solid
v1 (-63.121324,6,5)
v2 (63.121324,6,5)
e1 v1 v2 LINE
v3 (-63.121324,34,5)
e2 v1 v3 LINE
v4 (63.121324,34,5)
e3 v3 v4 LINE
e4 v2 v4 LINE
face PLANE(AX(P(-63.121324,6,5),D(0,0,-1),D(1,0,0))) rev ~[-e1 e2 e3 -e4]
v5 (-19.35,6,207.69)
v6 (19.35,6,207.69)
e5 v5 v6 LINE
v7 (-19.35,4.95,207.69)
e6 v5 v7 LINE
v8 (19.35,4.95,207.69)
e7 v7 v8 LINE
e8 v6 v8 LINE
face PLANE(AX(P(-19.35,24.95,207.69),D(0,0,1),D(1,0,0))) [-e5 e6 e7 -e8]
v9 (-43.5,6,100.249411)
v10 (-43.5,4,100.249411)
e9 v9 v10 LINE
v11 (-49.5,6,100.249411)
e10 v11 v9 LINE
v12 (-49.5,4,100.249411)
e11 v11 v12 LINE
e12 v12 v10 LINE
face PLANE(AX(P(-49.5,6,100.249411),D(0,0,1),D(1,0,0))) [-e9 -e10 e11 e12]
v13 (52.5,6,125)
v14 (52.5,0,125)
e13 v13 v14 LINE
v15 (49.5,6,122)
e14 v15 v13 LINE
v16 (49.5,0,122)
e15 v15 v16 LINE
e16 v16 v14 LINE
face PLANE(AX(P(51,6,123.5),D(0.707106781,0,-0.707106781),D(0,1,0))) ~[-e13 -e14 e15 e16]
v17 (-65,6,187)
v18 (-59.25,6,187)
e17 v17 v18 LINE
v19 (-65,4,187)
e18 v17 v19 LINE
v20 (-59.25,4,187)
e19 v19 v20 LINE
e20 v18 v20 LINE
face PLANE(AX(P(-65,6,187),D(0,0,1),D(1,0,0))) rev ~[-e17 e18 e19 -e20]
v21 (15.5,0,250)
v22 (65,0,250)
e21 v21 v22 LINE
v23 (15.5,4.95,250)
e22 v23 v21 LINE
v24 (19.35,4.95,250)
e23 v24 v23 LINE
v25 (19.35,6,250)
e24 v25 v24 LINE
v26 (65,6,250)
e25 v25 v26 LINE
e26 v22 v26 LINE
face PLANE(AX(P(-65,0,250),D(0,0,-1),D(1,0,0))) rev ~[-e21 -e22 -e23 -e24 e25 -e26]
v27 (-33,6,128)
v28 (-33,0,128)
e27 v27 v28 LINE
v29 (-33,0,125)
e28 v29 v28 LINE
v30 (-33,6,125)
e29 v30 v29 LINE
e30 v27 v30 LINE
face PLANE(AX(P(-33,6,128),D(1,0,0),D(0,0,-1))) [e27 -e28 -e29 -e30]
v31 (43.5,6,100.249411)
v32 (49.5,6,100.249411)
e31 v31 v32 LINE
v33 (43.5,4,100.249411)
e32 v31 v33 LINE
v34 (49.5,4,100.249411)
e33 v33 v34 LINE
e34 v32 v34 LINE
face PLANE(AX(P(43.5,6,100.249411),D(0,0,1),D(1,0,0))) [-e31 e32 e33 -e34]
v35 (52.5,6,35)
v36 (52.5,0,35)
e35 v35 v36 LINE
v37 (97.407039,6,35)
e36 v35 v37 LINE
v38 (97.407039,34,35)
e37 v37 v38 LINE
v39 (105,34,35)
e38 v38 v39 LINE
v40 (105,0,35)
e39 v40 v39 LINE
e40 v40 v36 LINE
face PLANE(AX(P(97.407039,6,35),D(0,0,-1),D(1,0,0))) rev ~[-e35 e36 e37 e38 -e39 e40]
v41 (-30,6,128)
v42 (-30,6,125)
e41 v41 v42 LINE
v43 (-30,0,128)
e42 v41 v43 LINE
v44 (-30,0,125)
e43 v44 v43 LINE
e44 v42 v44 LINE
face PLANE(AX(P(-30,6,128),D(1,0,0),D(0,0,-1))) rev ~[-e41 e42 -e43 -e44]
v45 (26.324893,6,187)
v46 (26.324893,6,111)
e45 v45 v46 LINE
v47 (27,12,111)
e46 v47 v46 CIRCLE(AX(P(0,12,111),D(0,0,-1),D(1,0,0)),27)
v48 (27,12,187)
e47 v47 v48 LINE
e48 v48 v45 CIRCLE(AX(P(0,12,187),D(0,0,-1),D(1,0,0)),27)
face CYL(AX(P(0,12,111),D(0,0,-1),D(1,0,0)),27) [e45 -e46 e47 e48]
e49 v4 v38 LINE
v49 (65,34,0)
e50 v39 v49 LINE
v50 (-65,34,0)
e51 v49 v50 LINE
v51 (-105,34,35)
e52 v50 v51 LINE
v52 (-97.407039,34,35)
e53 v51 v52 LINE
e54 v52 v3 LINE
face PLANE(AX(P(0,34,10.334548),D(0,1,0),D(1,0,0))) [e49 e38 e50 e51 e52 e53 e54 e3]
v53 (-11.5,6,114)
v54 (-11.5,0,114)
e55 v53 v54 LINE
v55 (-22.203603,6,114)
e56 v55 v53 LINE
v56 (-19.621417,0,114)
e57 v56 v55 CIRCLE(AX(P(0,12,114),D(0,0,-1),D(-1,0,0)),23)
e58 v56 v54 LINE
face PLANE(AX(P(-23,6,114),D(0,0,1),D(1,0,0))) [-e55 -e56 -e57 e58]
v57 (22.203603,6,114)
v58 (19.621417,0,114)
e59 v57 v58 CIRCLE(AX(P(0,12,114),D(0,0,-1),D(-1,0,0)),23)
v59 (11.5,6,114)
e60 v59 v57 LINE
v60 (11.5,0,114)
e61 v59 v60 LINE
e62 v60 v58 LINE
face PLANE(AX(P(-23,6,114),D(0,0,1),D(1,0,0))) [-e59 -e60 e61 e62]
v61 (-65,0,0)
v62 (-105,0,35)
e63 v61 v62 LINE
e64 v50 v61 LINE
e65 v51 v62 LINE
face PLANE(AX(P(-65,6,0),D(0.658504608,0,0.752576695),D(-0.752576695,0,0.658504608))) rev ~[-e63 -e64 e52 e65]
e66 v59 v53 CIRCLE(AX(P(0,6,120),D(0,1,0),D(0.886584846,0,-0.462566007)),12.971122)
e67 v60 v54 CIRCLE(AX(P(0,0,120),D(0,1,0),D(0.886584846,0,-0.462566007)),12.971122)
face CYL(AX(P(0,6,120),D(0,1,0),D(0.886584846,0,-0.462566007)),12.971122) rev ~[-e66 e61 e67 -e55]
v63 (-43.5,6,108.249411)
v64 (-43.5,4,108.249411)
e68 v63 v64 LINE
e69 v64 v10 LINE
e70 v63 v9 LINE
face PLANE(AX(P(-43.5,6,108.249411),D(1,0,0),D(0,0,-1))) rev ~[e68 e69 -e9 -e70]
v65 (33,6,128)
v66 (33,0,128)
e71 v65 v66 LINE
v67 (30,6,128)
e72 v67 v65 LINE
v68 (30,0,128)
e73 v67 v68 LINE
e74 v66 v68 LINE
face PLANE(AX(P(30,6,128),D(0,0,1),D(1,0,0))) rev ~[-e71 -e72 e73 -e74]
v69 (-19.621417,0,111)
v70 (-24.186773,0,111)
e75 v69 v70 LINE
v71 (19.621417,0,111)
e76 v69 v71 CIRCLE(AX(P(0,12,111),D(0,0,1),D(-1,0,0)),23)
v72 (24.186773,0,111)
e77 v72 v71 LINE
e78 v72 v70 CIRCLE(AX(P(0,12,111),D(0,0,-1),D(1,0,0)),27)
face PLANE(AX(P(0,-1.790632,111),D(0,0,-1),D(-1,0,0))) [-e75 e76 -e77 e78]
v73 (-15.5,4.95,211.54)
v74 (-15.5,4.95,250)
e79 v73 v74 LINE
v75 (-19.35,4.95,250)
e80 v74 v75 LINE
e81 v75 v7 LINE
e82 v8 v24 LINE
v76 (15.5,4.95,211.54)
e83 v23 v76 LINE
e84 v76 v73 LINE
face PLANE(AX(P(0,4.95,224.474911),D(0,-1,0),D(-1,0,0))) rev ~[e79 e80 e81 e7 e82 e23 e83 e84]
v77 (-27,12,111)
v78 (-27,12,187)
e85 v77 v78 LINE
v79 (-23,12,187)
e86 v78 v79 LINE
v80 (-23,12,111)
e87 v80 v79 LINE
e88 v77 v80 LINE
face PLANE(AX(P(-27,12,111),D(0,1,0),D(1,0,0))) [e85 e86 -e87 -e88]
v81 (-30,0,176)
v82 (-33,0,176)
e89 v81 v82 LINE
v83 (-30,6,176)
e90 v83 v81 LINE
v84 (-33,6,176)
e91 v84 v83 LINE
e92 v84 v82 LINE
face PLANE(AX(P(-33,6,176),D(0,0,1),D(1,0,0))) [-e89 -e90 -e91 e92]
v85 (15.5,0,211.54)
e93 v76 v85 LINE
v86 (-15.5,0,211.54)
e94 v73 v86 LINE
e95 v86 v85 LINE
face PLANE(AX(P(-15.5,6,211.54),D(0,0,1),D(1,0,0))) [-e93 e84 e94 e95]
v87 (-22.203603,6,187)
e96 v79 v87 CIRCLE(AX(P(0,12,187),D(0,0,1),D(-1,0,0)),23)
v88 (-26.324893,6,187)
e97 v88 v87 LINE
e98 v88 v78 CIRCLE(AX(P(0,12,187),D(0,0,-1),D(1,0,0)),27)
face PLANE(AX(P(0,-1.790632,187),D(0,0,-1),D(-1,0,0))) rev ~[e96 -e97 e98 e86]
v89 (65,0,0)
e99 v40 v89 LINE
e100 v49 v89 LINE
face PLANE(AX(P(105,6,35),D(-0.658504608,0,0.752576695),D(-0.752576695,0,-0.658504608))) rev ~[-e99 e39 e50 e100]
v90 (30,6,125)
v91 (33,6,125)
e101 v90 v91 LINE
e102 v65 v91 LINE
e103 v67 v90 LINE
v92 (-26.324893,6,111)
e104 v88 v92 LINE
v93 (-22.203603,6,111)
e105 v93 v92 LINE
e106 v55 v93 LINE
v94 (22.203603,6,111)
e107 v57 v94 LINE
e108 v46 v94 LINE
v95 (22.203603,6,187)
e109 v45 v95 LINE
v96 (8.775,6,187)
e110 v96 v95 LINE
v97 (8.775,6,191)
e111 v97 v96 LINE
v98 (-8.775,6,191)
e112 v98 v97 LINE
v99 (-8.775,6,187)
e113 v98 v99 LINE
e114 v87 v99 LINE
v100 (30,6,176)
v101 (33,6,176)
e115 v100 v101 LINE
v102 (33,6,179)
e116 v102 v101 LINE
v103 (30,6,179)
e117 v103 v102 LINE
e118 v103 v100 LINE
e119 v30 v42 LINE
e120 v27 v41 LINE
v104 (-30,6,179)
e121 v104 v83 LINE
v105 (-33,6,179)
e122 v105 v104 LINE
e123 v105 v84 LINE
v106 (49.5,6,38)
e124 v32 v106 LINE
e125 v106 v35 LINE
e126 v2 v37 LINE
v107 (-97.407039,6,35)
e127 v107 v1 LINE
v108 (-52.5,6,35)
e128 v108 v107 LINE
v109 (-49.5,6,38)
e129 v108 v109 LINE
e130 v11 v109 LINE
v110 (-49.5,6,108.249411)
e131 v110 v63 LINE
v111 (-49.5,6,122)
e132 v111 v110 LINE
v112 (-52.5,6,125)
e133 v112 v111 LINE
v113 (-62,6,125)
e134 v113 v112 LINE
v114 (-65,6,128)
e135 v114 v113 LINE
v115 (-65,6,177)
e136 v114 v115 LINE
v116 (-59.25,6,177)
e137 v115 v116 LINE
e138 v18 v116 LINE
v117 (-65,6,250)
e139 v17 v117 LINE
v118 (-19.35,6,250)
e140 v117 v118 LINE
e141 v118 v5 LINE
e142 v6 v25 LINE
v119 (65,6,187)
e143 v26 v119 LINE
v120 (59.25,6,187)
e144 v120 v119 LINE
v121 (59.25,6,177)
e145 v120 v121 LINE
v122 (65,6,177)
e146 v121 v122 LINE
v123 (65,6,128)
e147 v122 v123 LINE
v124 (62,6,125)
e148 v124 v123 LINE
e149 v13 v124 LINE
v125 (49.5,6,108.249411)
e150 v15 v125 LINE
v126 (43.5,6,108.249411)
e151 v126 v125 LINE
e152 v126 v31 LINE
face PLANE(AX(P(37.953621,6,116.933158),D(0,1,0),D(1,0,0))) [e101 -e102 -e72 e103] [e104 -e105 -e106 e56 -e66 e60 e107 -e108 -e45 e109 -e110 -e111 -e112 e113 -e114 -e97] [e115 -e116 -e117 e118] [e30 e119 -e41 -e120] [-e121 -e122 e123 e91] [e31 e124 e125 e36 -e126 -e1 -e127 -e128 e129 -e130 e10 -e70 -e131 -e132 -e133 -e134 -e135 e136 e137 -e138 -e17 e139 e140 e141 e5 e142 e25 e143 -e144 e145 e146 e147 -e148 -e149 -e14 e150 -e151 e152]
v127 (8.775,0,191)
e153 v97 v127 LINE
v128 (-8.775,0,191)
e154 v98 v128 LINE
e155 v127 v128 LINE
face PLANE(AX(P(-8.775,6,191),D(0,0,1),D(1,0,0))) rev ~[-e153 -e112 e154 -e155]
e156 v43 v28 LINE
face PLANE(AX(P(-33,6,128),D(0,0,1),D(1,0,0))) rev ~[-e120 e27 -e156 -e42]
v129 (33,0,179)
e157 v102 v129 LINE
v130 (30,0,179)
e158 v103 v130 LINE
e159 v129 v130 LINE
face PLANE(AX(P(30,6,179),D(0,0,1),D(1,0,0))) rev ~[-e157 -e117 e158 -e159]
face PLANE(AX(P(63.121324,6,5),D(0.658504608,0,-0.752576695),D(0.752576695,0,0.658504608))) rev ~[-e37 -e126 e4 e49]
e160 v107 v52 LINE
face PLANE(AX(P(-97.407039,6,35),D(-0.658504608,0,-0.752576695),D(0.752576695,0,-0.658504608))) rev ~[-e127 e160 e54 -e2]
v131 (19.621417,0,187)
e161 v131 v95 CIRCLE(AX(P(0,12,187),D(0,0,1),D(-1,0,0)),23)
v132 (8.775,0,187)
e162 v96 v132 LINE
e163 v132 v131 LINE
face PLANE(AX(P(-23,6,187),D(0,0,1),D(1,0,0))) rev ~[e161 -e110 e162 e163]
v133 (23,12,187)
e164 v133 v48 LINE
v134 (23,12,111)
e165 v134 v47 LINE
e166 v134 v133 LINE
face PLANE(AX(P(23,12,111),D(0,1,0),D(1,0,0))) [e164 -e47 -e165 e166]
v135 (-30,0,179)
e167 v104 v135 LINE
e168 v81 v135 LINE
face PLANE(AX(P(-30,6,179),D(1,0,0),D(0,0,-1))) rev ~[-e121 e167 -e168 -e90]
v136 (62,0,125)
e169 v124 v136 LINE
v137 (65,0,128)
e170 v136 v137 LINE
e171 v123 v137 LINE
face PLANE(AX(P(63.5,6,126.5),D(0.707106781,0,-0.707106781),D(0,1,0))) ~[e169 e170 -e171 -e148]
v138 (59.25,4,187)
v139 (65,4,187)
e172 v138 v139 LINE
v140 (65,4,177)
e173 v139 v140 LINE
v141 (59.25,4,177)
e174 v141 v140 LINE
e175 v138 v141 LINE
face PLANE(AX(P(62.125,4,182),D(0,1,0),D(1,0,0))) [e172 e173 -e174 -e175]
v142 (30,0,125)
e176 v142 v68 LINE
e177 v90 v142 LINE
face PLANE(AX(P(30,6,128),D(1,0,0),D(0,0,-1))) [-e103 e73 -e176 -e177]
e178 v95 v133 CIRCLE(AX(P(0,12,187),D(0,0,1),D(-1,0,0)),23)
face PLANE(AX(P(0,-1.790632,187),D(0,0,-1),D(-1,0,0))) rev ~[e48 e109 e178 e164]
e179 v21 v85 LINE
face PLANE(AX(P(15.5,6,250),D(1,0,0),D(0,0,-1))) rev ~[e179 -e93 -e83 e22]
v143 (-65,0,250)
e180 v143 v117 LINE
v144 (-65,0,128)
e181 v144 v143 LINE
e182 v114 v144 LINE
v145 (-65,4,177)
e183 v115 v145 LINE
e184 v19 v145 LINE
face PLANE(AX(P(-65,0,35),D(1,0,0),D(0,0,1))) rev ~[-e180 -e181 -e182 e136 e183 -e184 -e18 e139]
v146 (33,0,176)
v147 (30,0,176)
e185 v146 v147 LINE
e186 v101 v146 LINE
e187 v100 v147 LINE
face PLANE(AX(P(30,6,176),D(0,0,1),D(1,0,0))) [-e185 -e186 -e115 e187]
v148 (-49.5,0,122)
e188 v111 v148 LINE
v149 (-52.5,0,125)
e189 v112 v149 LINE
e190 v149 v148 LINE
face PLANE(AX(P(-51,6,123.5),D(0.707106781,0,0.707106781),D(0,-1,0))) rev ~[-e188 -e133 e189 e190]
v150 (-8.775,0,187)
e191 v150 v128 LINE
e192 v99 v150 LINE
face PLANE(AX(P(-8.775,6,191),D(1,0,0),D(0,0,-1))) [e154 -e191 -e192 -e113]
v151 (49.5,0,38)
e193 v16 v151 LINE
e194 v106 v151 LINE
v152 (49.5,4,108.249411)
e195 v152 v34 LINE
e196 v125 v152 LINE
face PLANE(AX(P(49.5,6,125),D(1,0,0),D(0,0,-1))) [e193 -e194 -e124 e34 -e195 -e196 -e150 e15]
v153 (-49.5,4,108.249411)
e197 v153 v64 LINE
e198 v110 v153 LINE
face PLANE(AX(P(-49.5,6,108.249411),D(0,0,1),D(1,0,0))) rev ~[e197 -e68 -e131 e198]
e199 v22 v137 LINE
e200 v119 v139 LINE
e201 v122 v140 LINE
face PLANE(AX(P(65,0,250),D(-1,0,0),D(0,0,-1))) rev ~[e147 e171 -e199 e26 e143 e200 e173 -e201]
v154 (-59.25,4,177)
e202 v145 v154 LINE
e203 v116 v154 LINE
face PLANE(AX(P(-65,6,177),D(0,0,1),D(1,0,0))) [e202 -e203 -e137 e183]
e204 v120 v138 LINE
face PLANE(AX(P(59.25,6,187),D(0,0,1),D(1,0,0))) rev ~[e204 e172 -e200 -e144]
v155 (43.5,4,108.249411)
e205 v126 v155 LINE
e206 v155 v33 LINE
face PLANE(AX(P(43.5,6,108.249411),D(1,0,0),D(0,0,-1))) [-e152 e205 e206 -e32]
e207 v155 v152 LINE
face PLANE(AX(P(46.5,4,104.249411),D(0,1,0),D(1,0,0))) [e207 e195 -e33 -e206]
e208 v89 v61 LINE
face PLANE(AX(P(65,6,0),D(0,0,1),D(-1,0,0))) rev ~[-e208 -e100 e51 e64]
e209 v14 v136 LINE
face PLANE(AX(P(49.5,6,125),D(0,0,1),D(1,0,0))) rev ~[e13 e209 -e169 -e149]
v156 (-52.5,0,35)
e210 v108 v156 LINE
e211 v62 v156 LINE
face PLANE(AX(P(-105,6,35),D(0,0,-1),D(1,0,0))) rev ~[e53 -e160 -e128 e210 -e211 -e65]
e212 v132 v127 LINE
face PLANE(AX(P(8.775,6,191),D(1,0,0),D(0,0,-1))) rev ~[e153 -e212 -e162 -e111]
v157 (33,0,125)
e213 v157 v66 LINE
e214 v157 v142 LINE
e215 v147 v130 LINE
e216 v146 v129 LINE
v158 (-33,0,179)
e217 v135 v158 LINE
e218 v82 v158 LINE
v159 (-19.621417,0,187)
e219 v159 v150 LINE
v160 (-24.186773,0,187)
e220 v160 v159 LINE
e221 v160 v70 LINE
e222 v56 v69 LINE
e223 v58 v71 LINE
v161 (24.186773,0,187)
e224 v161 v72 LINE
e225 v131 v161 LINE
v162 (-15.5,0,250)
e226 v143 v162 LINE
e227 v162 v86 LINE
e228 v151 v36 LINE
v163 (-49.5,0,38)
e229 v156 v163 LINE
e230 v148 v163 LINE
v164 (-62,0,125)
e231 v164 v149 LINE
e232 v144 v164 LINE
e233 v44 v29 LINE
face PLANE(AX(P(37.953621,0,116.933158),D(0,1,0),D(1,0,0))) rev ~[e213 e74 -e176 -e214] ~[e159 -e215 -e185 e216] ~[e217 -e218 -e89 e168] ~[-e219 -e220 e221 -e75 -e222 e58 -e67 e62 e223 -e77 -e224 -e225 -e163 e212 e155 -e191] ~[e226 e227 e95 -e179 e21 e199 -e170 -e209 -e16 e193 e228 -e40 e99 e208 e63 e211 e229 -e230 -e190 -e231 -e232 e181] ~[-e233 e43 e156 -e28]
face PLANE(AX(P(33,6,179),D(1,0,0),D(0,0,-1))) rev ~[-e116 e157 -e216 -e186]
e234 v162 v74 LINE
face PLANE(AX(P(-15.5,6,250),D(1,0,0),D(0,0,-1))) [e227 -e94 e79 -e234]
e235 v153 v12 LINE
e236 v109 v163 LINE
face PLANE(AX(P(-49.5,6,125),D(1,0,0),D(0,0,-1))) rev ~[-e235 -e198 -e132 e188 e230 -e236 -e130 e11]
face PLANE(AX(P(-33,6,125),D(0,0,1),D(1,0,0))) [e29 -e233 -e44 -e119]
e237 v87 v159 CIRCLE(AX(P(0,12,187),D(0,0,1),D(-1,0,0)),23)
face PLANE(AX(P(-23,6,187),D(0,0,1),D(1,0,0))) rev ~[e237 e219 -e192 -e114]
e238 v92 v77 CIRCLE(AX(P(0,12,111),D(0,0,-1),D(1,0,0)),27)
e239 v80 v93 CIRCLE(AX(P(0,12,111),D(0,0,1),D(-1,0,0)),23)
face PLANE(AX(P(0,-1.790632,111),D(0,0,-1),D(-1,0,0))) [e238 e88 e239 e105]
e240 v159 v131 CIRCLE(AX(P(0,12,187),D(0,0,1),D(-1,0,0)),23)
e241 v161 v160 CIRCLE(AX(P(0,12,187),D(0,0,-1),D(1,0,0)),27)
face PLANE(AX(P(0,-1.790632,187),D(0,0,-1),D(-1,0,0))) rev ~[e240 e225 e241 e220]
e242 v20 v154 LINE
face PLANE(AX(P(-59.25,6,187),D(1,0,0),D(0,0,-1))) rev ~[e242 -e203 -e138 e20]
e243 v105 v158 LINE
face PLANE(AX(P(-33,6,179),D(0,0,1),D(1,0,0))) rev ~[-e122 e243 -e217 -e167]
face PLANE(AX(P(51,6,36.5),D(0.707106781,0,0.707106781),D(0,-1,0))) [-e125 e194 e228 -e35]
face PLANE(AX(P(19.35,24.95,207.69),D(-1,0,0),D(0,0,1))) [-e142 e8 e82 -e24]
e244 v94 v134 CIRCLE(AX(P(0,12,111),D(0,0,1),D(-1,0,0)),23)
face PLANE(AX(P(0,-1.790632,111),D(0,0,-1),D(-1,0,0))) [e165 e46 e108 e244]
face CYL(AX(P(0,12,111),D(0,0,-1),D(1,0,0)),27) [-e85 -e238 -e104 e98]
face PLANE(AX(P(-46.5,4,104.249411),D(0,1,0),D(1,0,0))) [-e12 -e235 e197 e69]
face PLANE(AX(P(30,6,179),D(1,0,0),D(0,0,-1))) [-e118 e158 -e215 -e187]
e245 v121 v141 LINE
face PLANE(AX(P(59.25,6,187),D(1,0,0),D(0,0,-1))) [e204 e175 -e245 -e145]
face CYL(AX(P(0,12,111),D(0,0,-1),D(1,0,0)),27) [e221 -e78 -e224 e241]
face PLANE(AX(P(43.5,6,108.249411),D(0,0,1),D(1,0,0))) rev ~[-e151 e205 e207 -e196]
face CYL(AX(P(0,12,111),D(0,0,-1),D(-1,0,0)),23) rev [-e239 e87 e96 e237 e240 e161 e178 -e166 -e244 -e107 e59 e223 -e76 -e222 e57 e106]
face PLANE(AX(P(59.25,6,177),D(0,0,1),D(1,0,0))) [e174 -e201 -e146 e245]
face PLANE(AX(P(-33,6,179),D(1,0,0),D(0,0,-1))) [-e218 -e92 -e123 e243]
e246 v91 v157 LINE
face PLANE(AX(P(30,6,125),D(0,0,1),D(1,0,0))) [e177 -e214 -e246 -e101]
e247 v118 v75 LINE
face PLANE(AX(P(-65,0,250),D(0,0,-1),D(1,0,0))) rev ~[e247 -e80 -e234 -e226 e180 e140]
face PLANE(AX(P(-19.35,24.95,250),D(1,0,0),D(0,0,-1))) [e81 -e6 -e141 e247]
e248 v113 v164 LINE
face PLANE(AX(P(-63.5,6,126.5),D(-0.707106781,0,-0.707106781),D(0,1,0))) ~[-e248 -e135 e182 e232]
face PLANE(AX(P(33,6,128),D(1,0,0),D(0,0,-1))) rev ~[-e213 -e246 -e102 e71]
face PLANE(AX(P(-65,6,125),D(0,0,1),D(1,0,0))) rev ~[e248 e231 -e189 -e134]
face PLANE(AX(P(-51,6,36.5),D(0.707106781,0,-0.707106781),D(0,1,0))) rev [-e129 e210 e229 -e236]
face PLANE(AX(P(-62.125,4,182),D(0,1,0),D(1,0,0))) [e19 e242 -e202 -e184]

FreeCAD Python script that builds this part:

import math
import FreeCAD as App
import Part
import Sketcher
from FreeCAD import Vector


def edges_at(feature, points):
    """Names of the edges that pass closest to the given points."""
    edges = feature.Shape.Edges
    near = lambda p: min(range(len(edges)), key=lambda i: edges[i].distToShape(Part.Vertex(*p))[0])
    return sorted({f"Edge{near(p) + 1}" for p in points})

doc = App.newDocument("Part")
params = doc.addObject("Spreadsheet::Sheet", "Params")
for row, (alias, value) in enumerate([
    ("sketch1_width", "130 mm"),
    ("sketch1_width2", "40 mm"),
    ("sketch1_height", "215 mm"),
    ("pad1_length", "6 mm"),
    ("sketch2_width", "130 mm"),
    ("pad2_length", "28 mm"),
    ("sketch3_height", "90 mm"),
    ("sketch3_width", "15.5 mm"),
    ("chamfer_size", "3 mm"),
    ("sketch4_width", "46 mm"),
    ("sketch4_height", "73 mm"),
    ("pocket2_length", "23 mm"),
    ("sketch5_radius", "27 mm"),
    ("sketch5_radius2", "23 mm"),
    ("pad3_length", "73 mm"),
    ("pad3_length2", "3 mm"),
    ("sketch6_width", "31 mm"),
    ("sketch6_width2", "38.7 mm"),
    ("sketch6_height", "42.31 mm"),
    ("sketch6_height2", "38.46 mm"),
    ("pad4_length", "18.95 mm"),
    ("sketch7_width", "31 mm"),
    ("sketch7_height", "38.46 mm"),
    ("pocket3_length", "19.03 mm"),
    ("sketch8_width", "31 mm"),
    ("sketch8_width2", "38.7 mm"),
    ("sketch8_height", "42.31 mm"),
    ("sketch8_height2", "38.46 mm"),
    ("pocket4_length", "20 mm"),
    ("sketch9_width", "23 mm"),
    ("sketch10_height", "4 mm"),
    ("sketch10_width", "17.55 mm"),
    ("sketch11_width", "3 mm"),
    ("sketch12_width", "3 mm"),
    ("sketch13_width", "3 mm"),
    ("sketch14_width", "3 mm"),
    ("sketch15_width", "6 mm"),
    ("sketch15_height", "8 mm"),
    ("sketch15_height2", "10 mm"),
    ("sketch15_width2", "5.75 mm"),
    ("pocket11_length", "2 mm"),
], start=1):
    params.set(f"A{row}", alias)
    params.set(f"B{row}", "=" + value)
    params.setAlias(f"B{row}", alias)

body = doc.addObject("PartDesign::Body", "Body")

sketch1 = body.newObject("Sketcher::SketchObject", "Sketch")
sketch1.AttachmentSupport = (doc.getObject("XZ_Plane"), [""])
sketch1.MapMode = "FlatFace"
sketch1.addGeometry([
    Part.LineSegment(Vector(105, 35, 0), Vector(65, 0, 0)),
    Part.LineSegment(Vector(65, 0, 0), Vector(-65, 0, 0)),
    Part.LineSegment(Vector(-65, 0, 0), Vector(-105, 35, 0)),
    Part.LineSegment(Vector(-105, 35, 0), Vector(-65, 35, 0)),
    Part.LineSegment(Vector(-65, 35, 0), Vector(-65, 250, 0)),
    Part.LineSegment(Vector(-65, 250, 0), Vector(65, 250, 0)),
    Part.LineSegment(Vector(65, 250, 0), Vector(65, 35, 0)),
    Part.LineSegment(Vector(65, 35, 0), Vector(105, 35, 0)),
], False)
sketch1.addConstraint([
    Sketcher.Constraint("Coincident", 0, 2, 1, 1),
    Sketcher.Constraint("Coincident", 1, 2, 2, 1),
    Sketcher.Constraint("Coincident", 2, 2, 3, 1),
    Sketcher.Constraint("Coincident", 3, 2, 4, 1),
    Sketcher.Constraint("Coincident", 4, 2, 5, 1),
    Sketcher.Constraint("Coincident", 5, 2, 6, 1),
    Sketcher.Constraint("Coincident", 6, 2, 7, 1),
    Sketcher.Constraint("Coincident", 7, 2, 0, 1),
    Sketcher.Constraint("Horizontal", 1),
    Sketcher.Constraint("Horizontal", 3),
    Sketcher.Constraint("Vertical", 4),
    Sketcher.Constraint("Horizontal", 5),
    Sketcher.Constraint("Vertical", 6),
    Sketcher.Constraint("Horizontal", 7),
    Sketcher.Constraint("Symmetric", 0, 2, 1, 2, -1, 1),
    Sketcher.Constraint("Symmetric", 3, 2, 6, 2, -2),
    Sketcher.Constraint("Vertical", 1, 2, 3, 2),
    Sketcher.Constraint("Equal", 3, 7),
    Sketcher.Constraint("DistanceX", 1, 2, 1, 1, 130.0),
    Sketcher.Constraint("DistanceX", 3, 1, 3, 2, 40.0),
    Sketcher.Constraint("DistanceY", 4, 1, 4, 2, 215.0),
    Sketcher.Constraint("DistanceY", -1, 1, 2, 2, 35.0),
])
sketch1.setExpression("Constraints[18]", "Params.sketch1_width")
sketch1.setExpression("Constraints[19]", "Params.sketch1_width2")
sketch1.setExpression("Constraints[20]", "Params.sketch1_height")
pad1 = body.newObject("PartDesign::Pad", "Pad")
pad1.Profile = sketch1
pad1.setExpression("Length", "Params.pad1_length")
pad1.Reversed = True

sketch2 = body.newObject("Sketcher::SketchObject", "Sketch001")
sketch2.AttachmentSupport = (doc.getObject("XZ_Plane"), [""])
sketch2.MapMode = "FlatFace"
sketch2.AttachmentOffset = App.Placement(Vector(0, 0, -6), App.Rotation())
sketch2.addGeometry([
    Part.LineSegment(Vector(-105, 35, 0), Vector(-97.407039, 35, 0)),
    Part.LineSegment(Vector(-97.407039, 35, 0), Vector(-63.121324, 5, 0)),
    Part.LineSegment(Vector(-63.121324, 5, 0), Vector(63.121324, 5, 0)),
    Part.LineSegment(Vector(63.121324, 5, 0), Vector(97.407039, 35, 0)),
    Part.LineSegment(Vector(97.407039, 35, 0), Vector(105, 35, 0)),
    Part.LineSegment(Vector(105, 35, 0), Vector(65, 0, 0)),
    Part.LineSegment(Vector(65, 0, 0), Vector(-65, 0, 0)),
    Part.LineSegment(Vector(-65, 0, 0), Vector(-105, 35, 0)),
], False)
sketch2.addConstraint([
    Sketcher.Constraint("Coincident", 0, 2, 1, 1),
    Sketcher.Constraint("Coincident", 1, 2, 2, 1),
    Sketcher.Constraint("Coincident", 2, 2, 3, 1),
    Sketcher.Constraint("Coincident", 3, 2, 4, 1),
    Sketcher.Constraint("Coincident", 4, 2, 5, 1),
    Sketcher.Constraint("Coincident", 5, 2, 6, 1),
    Sketcher.Constraint("Coincident", 6, 2, 7, 1),
    Sketcher.Constraint("Coincident", 7, 2, 0, 1),
    Sketcher.Constraint("Horizontal", 0),
    Sketcher.Constraint("Horizontal", 2),
    Sketcher.Constraint("Horizontal", 4),
    Sketcher.Constraint("Horizontal", 6),
    Sketcher.Constraint("Symmetric", 5, 2, 6, 2, -1, 1),
    Sketcher.Constraint("Symmetric", 0, 2, 3, 2, -2),
    Sketcher.Constraint("Parallel", 3, 5),
    Sketcher.Constraint("Parallel", 1, 7),
    Sketcher.Constraint("Equal", 0, 4),
    Sketcher.Constraint("DistanceX", 6, 2, 6, 1, 130.0),
    Sketcher.Constraint("DistanceY", -1, 1, 0, 2, 35.0),
    Sketcher.Constraint("DistanceY", -1, 1, 1, 2, 5.0),
    Sketcher.Constraint("DistanceX", -1, 1, 4, 2, 105.0),
    Sketcher.Constraint("DistanceX", 0, 1, 0, 2, 7.592961),
])
sketch2.setExpression("Constraints[17]", "Params.sketch2_width")
pad2 = body.newObject("PartDesign::Pad", "Pad001")
pad2.Profile = sketch2
pad2.setExpression("Length", "Params.pad2_length")
pad2.Reversed = True

sketch3 = body.newObject("Sketcher::SketchObject", "Sketch002")
sketch3.AttachmentSupport = (doc.getObject("XZ_Plane"), [""])
sketch3.MapMode = "FlatFace"
sketch3.AttachmentOffset = App.Placement(Vector(0, 0, -6), App.Rotation())
sketch3.addGeometry([
    Part.LineSegment(Vector(-65, 35, 0), Vector(-65, 125, 0)),
    Part.LineSegment(Vector(-65, 125, 0), Vector(-49.5, 125, 0)),
    Part.LineSegment(Vector(-49.5, 125, 0), Vector(-49.5, 35, 0)),
    Part.LineSegment(Vector(-49.5, 35, 0), Vector(-65, 35, 0)),
    Part.LineSegment(Vector(49.5, 35, 0), Vector(49.5, 125, 0)),
    Part.LineSegment(Vector(49.5, 125, 0), Vector(65, 125, 0)),
    Part.LineSegment(Vector(65, 125, 0), Vector(65, 35, 0)),
    Part.LineSegment(Vector(65, 35, 0), Vector(49.5, 35, 0)),
], False)
sketch3.addConstraint([
    Sketcher.Constraint("Coincident", 0, 2, 1, 1),
    Sketcher.Constraint("Coincident", 1, 2, 2, 1),
    Sketcher.Constraint("Coincident", 2, 2, 3, 1),
    Sketcher.Constraint("Coincident", 3, 2, 0, 1),
    Sketcher.Constraint("Coincident", 4, 2, 5, 1),
    Sketcher.Constraint("Coincident", 5, 2, 6, 1),
    Sketcher.Constraint("Coincident", 6, 2, 7, 1),
    Sketcher.Constraint("Coincident", 7, 2, 4, 1),
    Sketcher.Constraint("Vertical", 0),
    Sketcher.Constraint("Horizontal", 1),
    Sketcher.Constraint("Vertical", 2),
    Sketcher.Constraint("Horizontal", 3),
    Sketcher.Constraint("Vertical", 4),
    Sketcher.Constraint("Horizontal", 5),
    Sketcher.Constraint("Vertical", 6),
    Sketcher.Constraint("Horizontal", 7),
    Sketcher.Constraint("Symmetric", 1, 2, 4, 2, -2),
    Sketcher.Constraint("Symmetric", 3, 2, 6, 2, -2),
    Sketcher.Constraint("DistanceY", 0, 1, 0, 2, 90.0),
    Sketcher.Constraint("DistanceX", 1, 1, 1, 2, 15.5),
    Sketcher.Constraint("DistanceX", 0, 2, -1, 1, 65.0),
    Sketcher.Constraint("DistanceY", -1, 1, 0, 2, 125.0),
])
sketch3.setExpression("Constraints[18]", "Params.sketch3_height")
sketch3.setExpression("Constraints[19]", "Params.sketch3_width")
pocket1 = body.newObject("PartDesign::Pocket", "Pocket")
pocket1.Profile = sketch3
pocket1.Type = "ThroughAll"
pocket1.Reversed = True
doc.recompute()

chamfer = body.newObject("PartDesign::Chamfer", "Chamfer")
chamfer.Base = (pocket1, edges_at(pocket1, [
    (-65, 3, 125),
    (-49.5, 3, 35),
    (-49.5, 3, 125),
    (65, 3, 125),
    (49.5, 3, 125),
    (49.5, 3, 35),
]))
chamfer.setExpression("Size", "Params.chamfer_size")

sketch4 = body.newObject("Sketcher::SketchObject", "Sketch003")
sketch4.AttachmentSupport = (doc.getObject("XZ_Plane"), [""])
sketch4.MapMode = "FlatFace"
sketch4.AttachmentOffset = App.Placement(Vector(0, 0, -6), App.Rotation())
sketch4.addGeometry([
    Part.LineSegment(Vector(-23, 114, 0), Vector(-23, 187, 0)),
    Part.LineSegment(Vector(-23, 187, 0), Vector(23, 187, 0)),
    Part.LineSegment(Vector(23, 187, 0), Vector(23, 114, 0)),
    Part.LineSegment(Vector(23, 114, 0), Vector(-23, 114, 0)),
], False)
sketch4.addConstraint([
    Sketcher.Constraint("Coincident", 0, 2, 1, 1),
    Sketcher.Constraint("Coincident", 1, 2, 2, 1),
    Sketcher.Constraint("Coincident", 2, 2, 3, 1),
    Sketcher.Constraint("Coincident", 3, 2, 0, 1),
    Sketcher.Constraint("Vertical", 0),
    Sketcher.Constraint("Horizontal", 1),
    Sketcher.Constraint("Vertical", 2),
    Sketcher.Constraint("Horizontal", 3),
    Sketcher.Constraint("DistanceX", 1, 1, 1, 2, 46.0),
    Sketcher.Constraint("DistanceY", 0, 1, 0, 2, 73.0),
    Sketcher.Constraint("DistanceX", 0, 2, -1, 1, 23.0),
    Sketcher.Constraint("DistanceY", -1, 1, 0, 2, 187.0),
])
sketch4.setExpression("Constraints[8]", "Params.sketch4_width")
sketch4.setExpression("Constraints[9]", "Params.sketch4_height")
pocket2 = body.newObject("PartDesign::Pocket", "Pocket001")
pocket2.Profile = sketch4
pocket2.setExpression("Length", "Params.pocket2_length")
pocket2.Reversed = True

sketch5 = body.newObject("Sketcher::SketchObject", "Sketch004")
sketch5.AttachmentSupport = (doc.getObject("XY_Plane"), [""])
sketch5.MapMode = "FlatFace"
sketch5.AttachmentOffset = App.Placement(Vector(0, 0, 114), App.Rotation())
sketch5.addGeometry([
    Part.LineSegment(Vector(-23, 12, 0), Vector(-27, 12, 0)),
    Part.ArcOfCircle(Part.Circle(Vector(0, 12, 0), Vector(0, 0, 1), 27), math.radians(180), math.radians(360)),
    Part.LineSegment(Vector(27, 12, 0), Vector(23, 12, 0)),
    Part.ArcOfCircle(Part.Circle(Vector(0, 12, 0), Vector(0, 0, 1), 23), math.radians(180), math.radians(360)),
], False)
sketch5.addConstraint([
    Sketcher.Constraint("Coincident", 0, 2, 1, 1),
    Sketcher.Constraint("Coincident", 1, 2, 2, 1),
    Sketcher.Constraint("Coincident", 2, 2, 3, 2),
    Sketcher.Constraint("Coincident", 3, 1, 0, 1),
    Sketcher.Constraint("Horizontal", 0),
    Sketcher.Constraint("Horizontal", 2),
    Sketcher.Constraint("Coincident", 3, 3, 1, 3),
    Sketcher.Constraint("Symmetric", 0, 2, 1, 2, -2),
    Sketcher.Constraint("Horizontal", 3, 3, 0, 2),
    Sketcher.Constraint("Radius", 1, 27.0),
    Sketcher.Constraint("Radius", 3, 23.0),
    Sketcher.Constraint("DistanceY", -1, 1, 1, 3, 12.0),
])
sketch5.setExpression("Constraints[9]", "Params.sketch5_radius")
sketch5.setExpression("Constraints[10]", "Params.sketch5_radius2")
pad3 = body.newObject("PartDesign::Pad", "Pad002")
pad3.Profile = sketch5
pad3.Type = "TwoLengths"
pad3.setExpression("Length", "Params.pad3_length")
pad3.setExpression("Length2", "Params.pad3_length2")

sketch6 = body.newObject("Sketcher::SketchObject", "Sketch005")
sketch6.AttachmentSupport = (doc.getObject("XZ_Plane"), [""])
sketch6.MapMode = "FlatFace"
sketch6.AttachmentOffset = App.Placement(Vector(0, 0, -6), App.Rotation())
sketch6.addGeometry([
    Part.LineSegment(Vector(-19.35, 207.69, 0), Vector(-19.35, 250, 0)),
    Part.LineSegment(Vector(-19.35, 250, 0), Vector(-15.5, 250, 0)),
    Part.LineSegment(Vector(-15.5, 250, 0), Vector(-15.5, 211.54, 0)),
    Part.LineSegment(Vector(-15.5, 211.54, 0), Vector(15.5, 211.54, 0)),
    Part.LineSegment(Vector(15.5, 211.54, 0), Vector(15.5, 250, 0)),
    Part.LineSegment(Vector(15.5, 250, 0), Vector(19.35, 250, 0)),
    Part.LineSegment(Vector(19.35, 250, 0), Vector(19.35, 207.69, 0)),
    Part.LineSegment(Vector(19.35, 207.69, 0), Vector(-19.35, 207.69, 0)),
], False)
sketch6.addConstraint([
    Sketcher.Constraint("Coincident", 0, 2, 1, 1),
    Sketcher.Constraint("Coincident", 1, 2, 2, 1),
    Sketcher.Constraint("Coincident", 2, 2, 3, 1),
    Sketcher.Constraint("Coincident", 3, 2, 4, 1),
    Sketcher.Constraint("Coincident", 4, 2, 5, 1),
    Sketcher.Constraint("Coincident", 5, 2, 6, 1),
    Sketcher.Constraint("Coincident", 6, 2, 7, 1),
    Sketcher.Constraint("Coincident", 7, 2, 0, 1),
    Sketcher.Constraint("Vertical", 0),
    Sketcher.Constraint("Horizontal", 1),
    Sketcher.Constraint("Vertical", 2),
    Sketcher.Constraint("Horizontal", 3),
    Sketcher.Constraint("Vertical", 4),
    Sketcher.Constraint("Horizontal", 5),
    Sketcher.Constraint("Vertical", 6),
    Sketcher.Constraint("Horizontal", 7),
    Sketcher.Constraint("Symmetric", 1, 2, 4, 2, -2),
    Sketcher.Constraint("Equal", 1, 5),
    Sketcher.Constraint("DistanceX", 3, 1, 3, 2, 31.0),
    Sketcher.Constraint("DistanceX", 7, 2, 7, 1, 38.7),
    Sketcher.Constraint("DistanceY", -1, 1, 0, 2, 250.0),
    Sketcher.Constraint("DistanceY", 0, 1, 0, 2, 42.31),
    Sketcher.Constraint("DistanceY", 2, 2, 2, 1, 38.46),
])
sketch6.setExpression("Constraints[18]", "Params.sketch6_width")
sketch6.setExpression("Constraints[19]", "Params.sketch6_width2")
sketch6.setExpression("Constraints[21]", "Params.sketch6_height")
sketch6.setExpression("Constraints[22]", "Params.sketch6_height2")
pad4 = body.newObject("PartDesign::Pad", "Pad003")
pad4.Profile = sketch6
pad4.setExpression("Length", "Params.pad4_length")
pad4.Reversed = True

sketch7 = body.newObject("Sketcher::SketchObject", "Sketch006")
sketch7.AttachmentSupport = (doc.getObject("XZ_Plane"), [""])
sketch7.MapMode = "FlatFace"
sketch7.AttachmentOffset = App.Placement(Vector(0, 0, -6), App.Rotation())
sketch7.addGeometry([
    Part.LineSegment(Vector(-15.5, 211.54, 0), Vector(-15.5, 250, 0)),
    Part.LineSegment(Vector(-15.5, 250, 0), Vector(15.5, 250, 0)),
    Part.LineSegment(Vector(15.5, 250, 0), Vector(15.5, 211.54, 0)),
    Part.LineSegment(Vector(15.5, 211.54, 0), Vector(-15.5, 211.54, 0)),
], False)
sketch7.addConstraint([
    Sketcher.Constraint("Coincident", 0, 2, 1, 1),
    Sketcher.Constraint("Coincident", 1, 2, 2, 1),
    Sketcher.Constraint("Coincident", 2, 2, 3, 1),
    Sketcher.Constraint("Coincident", 3, 2, 0, 1),
    Sketcher.Constraint("Vertical", 0),
    Sketcher.Constraint("Horizontal", 1),
    Sketcher.Constraint("Vertical", 2),
    Sketcher.Constraint("Horizontal", 3),
    Sketcher.Constraint("DistanceX", 1, 1, 1, 2, 31.0),
    Sketcher.Constraint("DistanceY", -1, 1, 0, 2, 250.0),
    Sketcher.Constraint("DistanceY", 0, 1, 0, 2, 38.46),
    Sketcher.Constraint("DistanceX", 0, 2, -1, 1, 15.5),
])
sketch7.setExpression("Constraints[8]", "Params.sketch7_width")
sketch7.setExpression("Constraints[10]", "Params.sketch7_height")
pocket3 = body.newObject("PartDesign::Pocket", "Pocket002")
pocket3.Profile = sketch7
pocket3.setExpression("Length", "Params.pocket3_length")
pocket3.Reversed = True

sketch8 = body.newObject("Sketcher::SketchObject", "Sketch007")
sketch8.AttachmentSupport = (doc.getObject("XZ_Plane"), [""])
sketch8.MapMode = "FlatFace"
sketch8.AttachmentOffset = App.Placement(Vector(0, 0, -24.95), App.Rotation())
sketch8.addGeometry([
    Part.LineSegment(Vector(-19.35, 207.69, 0), Vector(-19.35, 250, 0)),
    Part.LineSegment(Vector(-19.35, 250, 0), Vector(-15.5, 250, 0)),
    Part.LineSegment(Vector(-15.5, 250, 0), Vector(-15.5, 211.54, 0)),
    Part.LineSegment(Vector(-15.5, 211.54, 0), Vector(15.5, 211.54, 0)),
    Part.LineSegment(Vector(15.5, 211.54, 0), Vector(15.5, 250, 0)),
    Part.LineSegment(Vector(15.5, 250, 0), Vector(19.35, 250, 0)),
    Part.LineSegment(Vector(19.35, 250, 0), Vector(19.35, 207.69, 0)),
    Part.LineSegment(Vector(19.35, 207.69, 0), Vector(-19.35, 207.69, 0)),
], False)
sketch8.addConstraint([
    Sketcher.Constraint("Coincident", 0, 2, 1, 1),
    Sketcher.Constraint("Coincident", 1, 2, 2, 1),
    Sketcher.Constraint("Coincident", 2, 2, 3, 1),
    Sketcher.Constraint("Coincident", 3, 2, 4, 1),
    Sketcher.Constraint("Coincident", 4, 2, 5, 1),
    Sketcher.Constraint("Coincident", 5, 2, 6, 1),
    Sketcher.Constraint("Coincident", 6, 2, 7, 1),
    Sketcher.Constraint("Coincident", 7, 2, 0, 1),
    Sketcher.Constraint("Vertical", 0),
    Sketcher.Constraint("Horizontal", 1),
    Sketcher.Constraint("Vertical", 2),
    Sketcher.Constraint("Horizontal", 3),
    Sketcher.Constraint("Vertical", 4),
    Sketcher.Constraint("Horizontal", 5),
    Sketcher.Constraint("Vertical", 6),
    Sketcher.Constraint("Horizontal", 7),
    Sketcher.Constraint("Symmetric", 1, 2, 4, 2, -2),
    Sketcher.Constraint("Equal", 1, 5),
    Sketcher.Constraint("DistanceX", 3, 1, 3, 2, 31.0),
    Sketcher.Constraint("DistanceX", 7, 2, 7, 1, 38.7),
    Sketcher.Constraint("DistanceY", -1, 1, 0, 2, 250.0),
    Sketcher.Constraint("DistanceY", 0, 1, 0, 2, 42.31),
    Sketcher.Constraint("DistanceY", 2, 2, 2, 1, 38.46),
])
sketch8.setExpression("Constraints[18]", "Params.sketch8_width")
sketch8.setExpression("Constraints[19]", "Params.sketch8_width2")
sketch8.setExpression("Constraints[21]", "Params.sketch8_height")
sketch8.setExpression("Constraints[22]", "Params.sketch8_height2")
pocket4 = body.newObject("PartDesign::Pocket", "Pocket003")
pocket4.Profile = sketch8
pocket4.setExpression("Length", "Params.pocket4_length")
pocket4.Reversed = True

sketch9 = body.newObject("Sketcher::SketchObject", "Sketch008")
sketch9.AttachmentSupport = (doc.getObject("XZ_Plane"), [""])
sketch9.MapMode = "FlatFace"
sketch9.AttachmentOffset = App.Placement(Vector(0, 0, -6), App.Rotation())
sketch9.addGeometry([
    Part.LineSegment(Vector(-11.5, 114, 0), Vector(11.5, 114, 0)),
    Part.ArcOfCircle(Part.Circle(Vector(0, 120, 0), Vector(0, 0, 1), 12.971122), math.radians(-152.447188), math.radians(-27.552812)),
], False)
sketch9.addConstraint([
    Sketcher.Constraint("Coincident", 0, 1, 1, 1),
    Sketcher.Constraint("Coincident", 1, 2, 0, 2),
    Sketcher.Constraint("Horizontal", 0),
    Sketcher.Constraint("PointOnObject", 1, 3, -2),
    Sketcher.Constraint("DistanceX", 0, 1, 0, 2, 23.0),
    Sketcher.Constraint("DistanceY", -1, 1, 1, 3, 120.0),
    Sketcher.Constraint("DistanceY", -1, 1, 0, 1, 114.0),
])
sketch9.setExpression("Constraints[4]", "Params.sketch9_width")
pocket5 = body.newObject("PartDesign::Pocket", "Pocket004")
pocket5.Profile = sketch9
pocket5.Type = "UpToFirst"
pocket5.Reversed = True

sketch10 = body.newObject("Sketcher::SketchObject", "Sketch009")
sketch10.AttachmentSupport = (doc.getObject("XZ_Plane"), [""])
sketch10.MapMode = "FlatFace"
sketch10.AttachmentOffset = App.Placement(Vector(0, 0, -6), App.Rotation())
sketch10.addGeometry([
    Part.LineSegment(Vector(-8.775, 187, 0), Vector(-8.775, 191, 0)),
    Part.LineSegment(Vector(-8.775, 191, 0), Vector(8.775, 191, 0)),
    Part.LineSegment(Vector(8.775, 191, 0), Vector(8.775, 187, 0)),
    Part.LineSegment(Vector(8.775, 187, 0), Vector(-8.775, 187, 0)),
], False)
sketch10.addConstraint([
    Sketcher.Constraint("Coincident", 0, 2, 1, 1),
    Sketcher.Constraint("Coincident", 1, 2, 2, 1),
    Sketcher.Constraint("Coincident", 2, 2, 3, 1),
    Sketcher.Constraint("Coincident", 3, 2, 0, 1),
    Sketcher.Constraint("Vertical", 0),
    Sketcher.Constraint("Horizontal", 1),
    Sketcher.Constraint("Vertical", 2),
    Sketcher.Constraint("Horizontal", 3),
    Sketcher.Constraint("DistanceY", 0, 1, 0, 2, 4.0),
    Sketcher.Constraint("DistanceY", -1, 1, 0, 2, 191.0),
    Sketcher.Constraint("DistanceX", 1, 1, 1, 2, 17.55),
    Sketcher.Constraint("DistanceX", 0, 2, -1, 1, 8.775),
])
sketch10.setExpression("Constraints[8]", "Params.sketch10_height")
sketch10.setExpression("Constraints[10]", "Params.sketch10_width")
pocket6 = body.newObject("PartDesign::Pocket", "Pocket005")
pocket6.Profile = sketch10
pocket6.Type = "UpToFirst"
pocket6.Reversed = True

sketch11 = body.newObject("Sketcher::SketchObject", "Sketch010")
sketch11.AttachmentSupport = (doc.getObject("XZ_Plane"), [""])
sketch11.MapMode = "FlatFace"
sketch11.AttachmentOffset = App.Placement(Vector(0, 0, -6), App.Rotation())
sketch11.addGeometry([
    Part.LineSegment(Vector(-33, 125, 0), Vector(-33, 128, 0)),
    Part.LineSegment(Vector(-33, 128, 0), Vector(-30, 128, 0)),
    Part.LineSegment(Vector(-30, 128, 0), Vector(-30, 125, 0)),
    Part.LineSegment(Vector(-30, 125, 0), Vector(-33, 125, 0)),
], False)
sketch11.addConstraint([
    Sketcher.Constraint("Coincident", 0, 2, 1, 1),
    Sketcher.Constraint("Coincident", 1, 2, 2, 1),
    Sketcher.Constraint("Coincident", 2, 2, 3, 1),
    Sketcher.Constraint("Coincident", 3, 2, 0, 1),
    Sketcher.Constraint("Vertical", 0),
    Sketcher.Constraint("Horizontal", 1),
    Sketcher.Constraint("Vertical", 2),
    Sketcher.Constraint("Horizontal", 3),
    Sketcher.Constraint("Equal", 3, 0),
    Sketcher.Constraint("DistanceX", 1, 1, 1, 2, 3.0),
    Sketcher.Constraint("DistanceX", 0, 2, -1, 1, 33.0),
    Sketcher.Constraint("DistanceY", -1, 1, 0, 2, 128.0),
])
sketch11.setExpression("Constraints[9]", "Params.sketch11_width")
pocket7 = body.newObject("PartDesign::Pocket", "Pocket006")
pocket7.Profile = sketch11
pocket7.Type = "UpToFirst"
pocket7.Reversed = True

sketch12 = body.newObject("Sketcher::SketchObject", "Sketch011")
sketch12.AttachmentSupport = (doc.getObject("XZ_Plane"), [""])
sketch12.MapMode = "FlatFace"
sketch12.AttachmentOffset = App.Placement(Vector(0, 0, -6), App.Rotation())
sketch12.addGeometry([
    Part.LineSegment(Vector(-33, 176, 0), Vector(-33, 179, 0)),
    Part.LineSegment(Vector(-33, 179, 0), Vector(-30, 179, 0)),
    Part.LineSegment(Vector(-30, 179, 0), Vector(-30, 176, 0)),
    Part.LineSegment(Vector(-30, 176, 0), Vector(-33, 176, 0)),
], False)
sketch12.addConstraint([
    Sketcher.Constraint("Coincident", 0, 2, 1, 1),
    Sketcher.Constraint("Coincident", 1, 2, 2, 1),
    Sketcher.Constraint("Coincident", 2, 2, 3, 1),
    Sketcher.Constraint("Coincident", 3, 2, 0, 1),
    Sketcher.Constraint("Vertical", 0),
    Sketcher.Constraint("Horizontal", 1),
    Sketcher.Constraint("Vertical", 2),
    Sketcher.Constraint("Horizontal", 3),
    Sketcher.Constraint("Equal", 3, 0),
    Sketcher.Constraint("DistanceX", 1, 1, 1, 2, 3.0),
    Sketcher.Constraint("DistanceX", 0, 2, -1, 1, 33.0),
    Sketcher.Constraint("DistanceY", -1, 1, 0, 2, 179.0),
])
sketch12.setExpression("Constraints[9]", "Params.sketch12_width")
pocket8 = body.newObject("PartDesign::Pocket", "Pocket007")
pocket8.Profile = sketch12
pocket8.Type = "UpToFirst"
pocket8.Reversed = True

sketch13 = body.newObject("Sketcher::SketchObject", "Sketch012")
sketch13.AttachmentSupport = (doc.getObject("XZ_Plane"), [""])
sketch13.MapMode = "FlatFace"
sketch13.AttachmentOffset = App.Placement(Vector(0, 0, -6), App.Rotation())
sketch13.addGeometry([
    Part.LineSegment(Vector(30, 125, 0), Vector(30, 128, 0)),
    Part.LineSegment(Vector(30, 128, 0), Vector(33, 128, 0)),
    Part.LineSegment(Vector(33, 128, 0), Vector(33, 125, 0)),
    Part.LineSegment(Vector(33, 125, 0), Vector(30, 125, 0)),
], False)
sketch13.addConstraint([
    Sketcher.Constraint("Coincident", 0, 2, 1, 1),
    Sketcher.Constraint("Coincident", 1, 2, 2, 1),
    Sketcher.Constraint("Coincident", 2, 2, 3, 1),
    Sketcher.Constraint("Coincident", 3, 2, 0, 1),
    Sketcher.Constraint("Vertical", 0),
    Sketcher.Constraint("Horizontal", 1),
    Sketcher.Constraint("Vertical", 2),
    Sketcher.Constraint("Horizontal", 3),
    Sketcher.Constraint("Equal", 3, 0),
    Sketcher.Constraint("DistanceX", 1, 1, 1, 2, 3.0),
    Sketcher.Constraint("DistanceX", -1, 1, 0, 2, 30.0),
    Sketcher.Constraint("DistanceY", -1, 1, 0, 2, 128.0),
])
sketch13.setExpression("Constraints[9]", "Params.sketch13_width")
pocket9 = body.newObject("PartDesign::Pocket", "Pocket008")
pocket9.Profile = sketch13
pocket9.Type = "UpToFirst"
pocket9.Reversed = True

sketch14 = body.newObject("Sketcher::SketchObject", "Sketch013")
sketch14.AttachmentSupport = (doc.getObject("XZ_Plane"), [""])
sketch14.MapMode = "FlatFace"
sketch14.AttachmentOffset = App.Placement(Vector(0, 0, -6), App.Rotation())
sketch14.addGeometry([
    Part.LineSegment(Vector(30, 176, 0), Vector(30, 179, 0)),
    Part.LineSegment(Vector(30, 179, 0), Vector(33, 179, 0)),
    Part.LineSegment(Vector(33, 179, 0), Vector(33, 176, 0)),
    Part.LineSegment(Vector(33, 176, 0), Vector(30, 176, 0)),
], False)
sketch14.addConstraint([
    Sketcher.Constraint("Coincident", 0, 2, 1, 1),
    Sketcher.Constraint("Coincident", 1, 2, 2, 1),
    Sketcher.Constraint("Coincident", 2, 2, 3, 1),
    Sketcher.Constraint("Coincident", 3, 2, 0, 1),
    Sketcher.Constraint("Vertical", 0),
    Sketcher.Constraint("Horizontal", 1),
    Sketcher.Constraint("Vertical", 2),
    Sketcher.Constraint("Horizontal", 3),
    Sketcher.Constraint("Equal", 3, 0),
    Sketcher.Constraint("DistanceX", 1, 1, 1, 2, 3.0),
    Sketcher.Constraint("DistanceX", -1, 1, 0, 2, 30.0),
    Sketcher.Constraint("DistanceY", -1, 1, 0, 2, 179.0),
])
sketch14.setExpression("Constraints[9]", "Params.sketch14_width")
pocket10 = body.newObject("PartDesign::Pocket", "Pocket009")
pocket10.Profile = sketch14
pocket10.Type = "UpToFirst"
pocket10.Reversed = True

sketch15 = body.newObject("Sketcher::SketchObject", "Sketch014")
sketch15.AttachmentSupport = (doc.getObject("XZ_Plane"), [""])
sketch15.MapMode = "FlatFace"
sketch15.AttachmentOffset = App.Placement(Vector(0, 0, -6), App.Rotation())
sketch15.addGeometry([
    Part.LineSegment(Vector(-49.5, 100.249411, 0), Vector(-49.5, 108.249411, 0)),
    Part.LineSegment(Vector(-49.5, 108.249411, 0), Vector(-43.5, 108.249411, 0)),
    Part.LineSegment(Vector(-43.5, 108.249411, 0), Vector(-43.5, 100.249411, 0)),
    Part.LineSegment(Vector(-43.5, 100.249411, 0), Vector(-49.5, 100.249411, 0)),
    Part.LineSegment(Vector(-65, 177, 0), Vector(-65, 187, 0)),
    Part.LineSegment(Vector(-65, 187, 0), Vector(-59.25, 187, 0)),
    Part.LineSegment(Vector(-59.25, 187, 0), Vector(-59.25, 177, 0)),
    Part.LineSegment(Vector(-59.25, 177, 0), Vector(-65, 177, 0)),
    Part.LineSegment(Vector(59.25, 177, 0), Vector(59.25, 187, 0)),
    Part.LineSegment(Vector(59.25, 187, 0), Vector(65, 187, 0)),
    Part.LineSegment(Vector(65, 187, 0), Vector(65, 177, 0)),
    Part.LineSegment(Vector(65, 177, 0), Vector(59.25, 177, 0)),
    Part.LineSegment(Vector(43.5, 100.249411, 0), Vector(43.5, 108.249411, 0)),
    Part.LineSegment(Vector(43.5, 108.249411, 0), Vector(49.5, 108.249411, 0)),
    Part.LineSegment(Vector(49.5, 108.249411, 0), Vector(49.5, 100.249411, 0)),
    Part.LineSegment(Vector(49.5, 100.249411, 0), Vector(43.5, 100.249411, 0)),
], False)
sketch15.addConstraint([
    Sketcher.Constraint("Coincident", 0, 2, 1, 1),
    Sketcher.Constraint("Coincident", 1, 2, 2, 1),
    Sketcher.Constraint("Coincident", 2, 2, 3, 1),
    Sketcher.Constraint("Coincident", 3, 2, 0, 1),
    Sketcher.Constraint("Coincident", 4, 2, 5, 1),
    Sketcher.Constraint("Coincident", 5, 2, 6, 1),
    Sketcher.Constraint("Coincident", 6, 2, 7, 1),
    Sketcher.Constraint("Coincident", 7, 2, 4, 1),
    Sketcher.Constraint("Coincident", 8, 2, 9, 1),
    Sketcher.Constraint("Coincident", 9, 2, 10, 1),
    Sketcher.Constraint("Coincident", 10, 2, 11, 1),
    Sketcher.Constraint("Coincident", 11, 2, 8, 1),
    Sketcher.Constraint("Coincident", 12, 2, 13, 1),
    Sketcher.Constraint("Coincident", 13, 2, 14, 1),
    Sketcher.Constraint("Coincident", 14, 2, 15, 1),
    Sketcher.Constraint("Coincident", 15, 2, 12, 1),
    Sketcher.Constraint("Vertical", 0),
    Sketcher.Constraint("Horizontal", 1),
    Sketcher.Constraint("Vertical", 2),
    Sketcher.Constraint("Horizontal", 3),
    Sketcher.Constraint("Vertical", 4),
    Sketcher.Constraint("Horizontal", 5),
    Sketcher.Constraint("Vertical", 6),
    Sketcher.Constraint("Horizontal", 7),
    Sketcher.Constraint("Vertical", 8),
    Sketcher.Constraint("Horizontal", 9),
    Sketcher.Constraint("Vertical", 10),
    Sketcher.Constraint("Horizontal", 11),
    Sketcher.Constraint("Vertical", 12),
    Sketcher.Constraint("Horizontal", 13),
    Sketcher.Constraint("Vertical", 14),
    Sketcher.Constraint("Horizontal", 15),
    Sketcher.Constraint("Symmetric", 5, 2, 8, 2, -2),
    Sketcher.Constraint("Symmetric", 7, 2, 10, 2, -2),
    Sketcher.Constraint("Symmetric", 1, 2, 12, 2, -2),
    Sketcher.Constraint("Symmetric", 3, 2, 14, 2, -2),
    Sketcher.Constraint("DistanceX", 1, 1, 1, 2, 6.0),
    Sketcher.Constraint("DistanceY", 0, 1, 0, 2, 8.0),
    Sketcher.Constraint("DistanceY", 4, 1, 4, 2, 10.0),
    Sketcher.Constraint("DistanceX", 4, 2, -1, 1, 65.0),
    Sketcher.Constraint("DistanceY", -1, 1, 4, 2, 187.0),
    Sketcher.Constraint("DistanceX", 1, 2, 12, 2, 87.0),
    Sketcher.Constraint("DistanceX", 5, 1, 5, 2, 5.75),
    Sketcher.Constraint("DistanceY", -1, 1, 0, 2, 108.249411),
])
sketch15.setExpression("Constraints[36]", "Params.sketch15_width")
sketch15.setExpression("Constraints[37]", "Params.sketch15_height")
sketch15.setExpression("Constraints[38]", "Params.sketch15_height2")
sketch15.setExpression("Constraints[42]", "Params.sketch15_width2")
pocket11 = body.newObject("PartDesign::Pocket", "Pocket010")
pocket11.Profile = sketch15
pocket11.setExpression("Length", "Params.pocket11_length")
pocket11.Reversed = True

doc.recompute()
